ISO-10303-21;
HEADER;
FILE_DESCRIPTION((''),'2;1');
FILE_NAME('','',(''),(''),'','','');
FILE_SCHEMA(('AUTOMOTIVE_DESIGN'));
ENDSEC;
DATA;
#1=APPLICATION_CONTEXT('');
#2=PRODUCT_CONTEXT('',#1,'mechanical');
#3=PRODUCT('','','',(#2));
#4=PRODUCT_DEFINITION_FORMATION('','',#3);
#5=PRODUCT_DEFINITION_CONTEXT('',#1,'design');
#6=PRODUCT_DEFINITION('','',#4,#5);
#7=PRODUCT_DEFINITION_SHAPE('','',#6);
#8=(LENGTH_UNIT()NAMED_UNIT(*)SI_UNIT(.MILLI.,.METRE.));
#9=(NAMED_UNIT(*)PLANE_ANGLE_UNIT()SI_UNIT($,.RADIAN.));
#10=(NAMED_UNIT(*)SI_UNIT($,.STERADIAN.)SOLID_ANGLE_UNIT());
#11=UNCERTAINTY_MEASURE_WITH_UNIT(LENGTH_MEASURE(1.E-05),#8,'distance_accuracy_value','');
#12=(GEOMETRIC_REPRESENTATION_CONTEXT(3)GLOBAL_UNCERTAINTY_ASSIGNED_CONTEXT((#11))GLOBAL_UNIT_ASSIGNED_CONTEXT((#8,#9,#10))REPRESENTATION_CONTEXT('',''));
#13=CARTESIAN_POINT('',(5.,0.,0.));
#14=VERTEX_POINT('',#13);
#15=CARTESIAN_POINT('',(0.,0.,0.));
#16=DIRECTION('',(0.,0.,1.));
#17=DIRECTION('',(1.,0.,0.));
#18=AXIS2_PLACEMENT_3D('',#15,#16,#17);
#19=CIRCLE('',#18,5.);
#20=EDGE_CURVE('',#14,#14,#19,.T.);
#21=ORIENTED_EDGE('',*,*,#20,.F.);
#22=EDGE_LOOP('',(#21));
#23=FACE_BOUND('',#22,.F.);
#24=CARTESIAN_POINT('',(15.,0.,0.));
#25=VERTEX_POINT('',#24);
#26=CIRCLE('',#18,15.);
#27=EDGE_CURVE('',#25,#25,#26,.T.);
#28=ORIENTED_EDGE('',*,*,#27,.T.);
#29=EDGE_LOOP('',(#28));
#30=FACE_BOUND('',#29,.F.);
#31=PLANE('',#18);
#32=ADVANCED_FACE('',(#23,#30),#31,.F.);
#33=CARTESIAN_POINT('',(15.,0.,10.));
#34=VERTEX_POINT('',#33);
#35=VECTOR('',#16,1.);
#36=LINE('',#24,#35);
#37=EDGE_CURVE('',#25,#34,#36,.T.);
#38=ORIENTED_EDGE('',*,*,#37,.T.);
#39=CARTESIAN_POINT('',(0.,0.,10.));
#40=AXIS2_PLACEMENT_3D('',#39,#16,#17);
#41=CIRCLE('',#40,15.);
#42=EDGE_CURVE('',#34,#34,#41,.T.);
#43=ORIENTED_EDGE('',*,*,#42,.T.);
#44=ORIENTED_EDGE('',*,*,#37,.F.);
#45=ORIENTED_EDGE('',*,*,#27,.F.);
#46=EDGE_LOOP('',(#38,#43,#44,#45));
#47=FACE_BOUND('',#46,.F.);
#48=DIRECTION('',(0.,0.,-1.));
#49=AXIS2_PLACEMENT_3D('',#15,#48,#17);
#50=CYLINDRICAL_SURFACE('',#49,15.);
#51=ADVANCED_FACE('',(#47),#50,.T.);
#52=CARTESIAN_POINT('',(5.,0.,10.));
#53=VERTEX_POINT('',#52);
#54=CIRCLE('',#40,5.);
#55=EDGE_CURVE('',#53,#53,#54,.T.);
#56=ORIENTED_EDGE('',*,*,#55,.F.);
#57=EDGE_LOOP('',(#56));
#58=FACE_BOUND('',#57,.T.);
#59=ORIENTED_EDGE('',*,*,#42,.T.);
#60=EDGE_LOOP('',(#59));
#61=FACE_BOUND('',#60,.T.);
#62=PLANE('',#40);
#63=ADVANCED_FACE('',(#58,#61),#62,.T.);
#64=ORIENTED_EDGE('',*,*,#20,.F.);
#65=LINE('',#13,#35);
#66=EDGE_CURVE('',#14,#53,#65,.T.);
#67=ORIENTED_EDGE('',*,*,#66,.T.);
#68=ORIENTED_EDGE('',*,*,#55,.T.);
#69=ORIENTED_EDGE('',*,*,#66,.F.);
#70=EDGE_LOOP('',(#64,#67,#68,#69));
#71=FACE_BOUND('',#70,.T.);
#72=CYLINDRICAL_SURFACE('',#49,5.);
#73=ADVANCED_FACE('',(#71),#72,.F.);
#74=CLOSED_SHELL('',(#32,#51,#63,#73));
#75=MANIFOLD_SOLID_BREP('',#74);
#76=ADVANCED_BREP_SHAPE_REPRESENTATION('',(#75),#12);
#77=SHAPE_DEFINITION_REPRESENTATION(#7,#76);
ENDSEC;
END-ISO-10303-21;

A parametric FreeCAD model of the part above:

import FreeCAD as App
import Part
import Sketcher
from FreeCAD import Vector
Q = App.Units.Quantity

doc = App.newDocument("Part")
params = doc.addObject("Spreadsheet::Sheet", "Params")
for row, (alias, value) in enumerate([
    ("sketch1_diameter", "30 mm"),
    ("sketch1_diameter2", "10 mm"),
    ("pad1_length", "10 mm"),
], start=1):
    params.set(f"A{row}", alias)
    params.set(f"B{row}", "=" + value)
    params.setAlias(f"B{row}", alias)

body = doc.addObject("PartDesign::Body", "Body")

# Sketch on XY plane
sketch1 = body.newObject("Sketcher::SketchObject", "Sketch")
sketch1.AttachmentSupport = (doc.getObject("XY_Plane"), [""])
sketch1.MapMode = "FlatFace"
sketch1.addGeometry(Part.Circle(Vector(0, 0, 0), Vector(0, 0, 1), 15), False)
sketch1.addGeometry(Part.Circle(Vector(0, 0, 0), Vector(0, 0, 1), 5), False)
sketch1.addConstraint(Sketcher.Constraint("Coincident", 0, 3, -1, 1))
sketch1.addConstraint(Sketcher.Constraint("Coincident", 1, 3, -1, 1))
sketch1.addConstraint(Sketcher.Constraint("Diameter", 0, Q("30 mm")))
sketch1.addConstraint(Sketcher.Constraint("Diameter", 1, Q("10 mm")))
sketch1.setExpression("Constraints[2]", "Params.sketch1_diameter")
sketch1.setExpression("Constraints[3]", "Params.sketch1_diameter2")
pad1 = body.newObject("PartDesign::Pad", "Pad")
pad1.Profile = sketch1
pad1.setExpression("Length", "Params.pad1_length")

doc.recompute()
